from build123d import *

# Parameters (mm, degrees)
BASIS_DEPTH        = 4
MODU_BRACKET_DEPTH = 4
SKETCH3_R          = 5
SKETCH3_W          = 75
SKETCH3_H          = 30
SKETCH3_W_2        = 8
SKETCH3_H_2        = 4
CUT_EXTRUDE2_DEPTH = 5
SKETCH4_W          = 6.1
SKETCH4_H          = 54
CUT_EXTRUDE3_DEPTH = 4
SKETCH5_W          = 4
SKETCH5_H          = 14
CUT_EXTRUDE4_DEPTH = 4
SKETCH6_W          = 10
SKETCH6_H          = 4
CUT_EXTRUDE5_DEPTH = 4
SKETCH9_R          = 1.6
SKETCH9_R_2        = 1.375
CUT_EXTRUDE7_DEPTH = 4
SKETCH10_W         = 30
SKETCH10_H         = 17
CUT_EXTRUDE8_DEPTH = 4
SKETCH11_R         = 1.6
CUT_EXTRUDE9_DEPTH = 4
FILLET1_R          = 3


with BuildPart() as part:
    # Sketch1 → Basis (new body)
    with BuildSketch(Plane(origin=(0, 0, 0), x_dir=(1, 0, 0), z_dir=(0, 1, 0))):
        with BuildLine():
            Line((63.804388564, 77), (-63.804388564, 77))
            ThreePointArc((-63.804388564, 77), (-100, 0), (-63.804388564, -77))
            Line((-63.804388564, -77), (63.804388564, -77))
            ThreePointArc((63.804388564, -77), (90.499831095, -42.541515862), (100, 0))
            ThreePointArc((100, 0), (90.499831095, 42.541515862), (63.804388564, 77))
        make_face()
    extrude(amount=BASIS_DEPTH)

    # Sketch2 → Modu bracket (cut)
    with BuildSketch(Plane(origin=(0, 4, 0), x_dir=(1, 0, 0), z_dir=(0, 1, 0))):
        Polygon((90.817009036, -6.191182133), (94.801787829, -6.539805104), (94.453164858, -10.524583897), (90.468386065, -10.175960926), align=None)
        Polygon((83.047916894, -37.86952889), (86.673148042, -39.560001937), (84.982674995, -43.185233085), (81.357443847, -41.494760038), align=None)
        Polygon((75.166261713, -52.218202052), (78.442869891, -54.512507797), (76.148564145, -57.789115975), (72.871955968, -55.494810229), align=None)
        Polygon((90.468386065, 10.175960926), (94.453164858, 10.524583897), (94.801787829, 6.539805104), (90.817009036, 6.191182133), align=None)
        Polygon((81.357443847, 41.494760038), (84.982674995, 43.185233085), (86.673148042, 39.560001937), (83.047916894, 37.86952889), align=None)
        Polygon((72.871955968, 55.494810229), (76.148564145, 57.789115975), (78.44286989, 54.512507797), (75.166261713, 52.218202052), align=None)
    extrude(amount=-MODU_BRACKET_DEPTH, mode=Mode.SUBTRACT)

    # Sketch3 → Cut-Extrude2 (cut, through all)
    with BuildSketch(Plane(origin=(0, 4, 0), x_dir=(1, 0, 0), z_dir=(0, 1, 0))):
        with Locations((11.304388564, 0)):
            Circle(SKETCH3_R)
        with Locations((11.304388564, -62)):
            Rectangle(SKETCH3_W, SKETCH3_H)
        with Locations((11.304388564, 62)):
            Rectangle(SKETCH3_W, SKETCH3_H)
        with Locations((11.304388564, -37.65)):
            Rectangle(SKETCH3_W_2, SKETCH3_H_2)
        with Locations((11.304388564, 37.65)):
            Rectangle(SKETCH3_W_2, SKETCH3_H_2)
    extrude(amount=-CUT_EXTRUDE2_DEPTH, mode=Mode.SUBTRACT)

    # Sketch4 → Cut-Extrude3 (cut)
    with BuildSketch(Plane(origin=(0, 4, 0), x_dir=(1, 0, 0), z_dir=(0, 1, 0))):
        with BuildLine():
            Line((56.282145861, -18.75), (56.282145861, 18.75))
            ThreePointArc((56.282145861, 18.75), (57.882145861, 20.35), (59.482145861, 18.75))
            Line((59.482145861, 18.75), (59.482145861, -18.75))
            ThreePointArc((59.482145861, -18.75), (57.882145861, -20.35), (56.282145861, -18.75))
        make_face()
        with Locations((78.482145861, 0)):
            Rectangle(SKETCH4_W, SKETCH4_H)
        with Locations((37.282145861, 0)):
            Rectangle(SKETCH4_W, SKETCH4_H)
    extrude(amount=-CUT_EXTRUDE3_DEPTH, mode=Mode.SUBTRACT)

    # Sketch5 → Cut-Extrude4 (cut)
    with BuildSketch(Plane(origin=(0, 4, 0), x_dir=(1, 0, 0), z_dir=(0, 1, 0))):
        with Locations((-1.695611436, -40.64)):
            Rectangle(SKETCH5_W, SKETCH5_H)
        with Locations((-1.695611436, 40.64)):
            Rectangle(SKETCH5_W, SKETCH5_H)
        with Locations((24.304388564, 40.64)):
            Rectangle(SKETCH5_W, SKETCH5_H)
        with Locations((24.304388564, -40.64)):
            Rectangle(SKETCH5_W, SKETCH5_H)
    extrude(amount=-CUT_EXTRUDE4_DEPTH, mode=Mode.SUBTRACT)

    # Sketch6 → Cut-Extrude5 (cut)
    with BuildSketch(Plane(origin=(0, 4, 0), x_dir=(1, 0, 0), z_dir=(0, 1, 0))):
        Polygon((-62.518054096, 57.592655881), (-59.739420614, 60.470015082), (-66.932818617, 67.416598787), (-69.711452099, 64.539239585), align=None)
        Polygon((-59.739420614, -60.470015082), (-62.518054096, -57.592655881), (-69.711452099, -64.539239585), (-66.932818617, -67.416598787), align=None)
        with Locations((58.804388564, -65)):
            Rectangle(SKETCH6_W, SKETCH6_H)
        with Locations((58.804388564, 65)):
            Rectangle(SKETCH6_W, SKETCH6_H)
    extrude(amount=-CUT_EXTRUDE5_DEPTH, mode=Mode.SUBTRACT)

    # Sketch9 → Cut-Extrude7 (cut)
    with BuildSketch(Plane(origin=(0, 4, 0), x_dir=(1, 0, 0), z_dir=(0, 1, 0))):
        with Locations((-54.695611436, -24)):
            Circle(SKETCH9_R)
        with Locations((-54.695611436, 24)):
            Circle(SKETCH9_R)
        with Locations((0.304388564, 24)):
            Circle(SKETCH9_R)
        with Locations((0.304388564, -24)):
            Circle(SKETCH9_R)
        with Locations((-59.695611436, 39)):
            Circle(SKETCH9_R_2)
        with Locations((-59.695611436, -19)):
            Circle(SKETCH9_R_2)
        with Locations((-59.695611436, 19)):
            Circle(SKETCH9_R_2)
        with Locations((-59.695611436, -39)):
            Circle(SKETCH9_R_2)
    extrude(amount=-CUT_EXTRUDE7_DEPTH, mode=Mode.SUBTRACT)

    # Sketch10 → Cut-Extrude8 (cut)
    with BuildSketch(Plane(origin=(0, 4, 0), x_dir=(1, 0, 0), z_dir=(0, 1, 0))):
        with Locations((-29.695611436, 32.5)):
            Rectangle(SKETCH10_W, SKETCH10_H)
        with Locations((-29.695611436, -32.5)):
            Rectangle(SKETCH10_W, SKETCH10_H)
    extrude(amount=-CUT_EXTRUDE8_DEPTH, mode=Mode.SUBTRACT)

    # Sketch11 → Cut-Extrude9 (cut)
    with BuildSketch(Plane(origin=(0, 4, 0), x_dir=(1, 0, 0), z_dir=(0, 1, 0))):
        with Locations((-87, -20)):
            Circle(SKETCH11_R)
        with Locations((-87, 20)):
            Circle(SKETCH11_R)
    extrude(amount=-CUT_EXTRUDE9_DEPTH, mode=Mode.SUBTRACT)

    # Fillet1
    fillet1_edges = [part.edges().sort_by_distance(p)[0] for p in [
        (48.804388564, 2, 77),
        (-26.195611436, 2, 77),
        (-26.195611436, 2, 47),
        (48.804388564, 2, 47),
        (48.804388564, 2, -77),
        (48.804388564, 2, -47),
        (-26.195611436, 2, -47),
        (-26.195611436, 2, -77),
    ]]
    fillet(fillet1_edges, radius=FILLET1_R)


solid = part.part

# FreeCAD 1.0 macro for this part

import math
import FreeCAD as App
import Part
import Sketcher

V = App.Vector
Q = App.Units.Quantity


def edges_at(feature, points):
    """Names of the edges that pass closest to the given points."""
    edges = feature.Shape.Edges
    near = lambda p: min(range(len(edges)), key=lambda i: edges[i].distToShape(Part.Vertex(*p))[0])
    return sorted({f"Edge{near(p) + 1}" for p in points})

doc = App.newDocument("Part")
body = doc.addObject("PartDesign::Body", "Body")

sketch1 = body.newObject("Sketcher::SketchObject", "Sketch")
sketch1.AttachmentSupport = (doc.getObject("XZ_Plane"), [""])
sketch1.MapMode = "FlatFace"
sketch1.addGeometry([
    Part.LineSegment(V(64, -77, 0), V(-64, -77, 0)),
    Part.ArcOfCircle(Part.Circle(V(0, 0, 0), V(0, 0, 1), 100), math.radians(130), math.radians(230)),
    Part.LineSegment(V(-64, 77, 0), V(64, 77, 0)),
    Part.ArcOfCircle(Part.Circle(V(0, 0, 0), V(0, 0, 1), 100), math.radians(0), math.radians(50)),
    Part.ArcOfCircle(Part.Circle(V(0, 0, 0), V(0, 0, 1), 100), math.radians(-50), math.radians(0)),
], False)
sketch1.addConstraint([
    Sketcher.Constraint("Coincident", 0, 2, 1, 2),
    Sketcher.Constraint("Coincident", 1, 1, 2, 1),
    Sketcher.Constraint("Coincident", 2, 2, 3, 2),
    Sketcher.Constraint("Tangent", 3, 1, 4, 2),
    Sketcher.Constraint("Coincident", 4, 1, 0, 1),
    Sketcher.Constraint("Horizontal", 0),
    Sketcher.Constraint("Horizontal", 2),
    Sketcher.Constraint("Coincident", 1, 3, -1, 1),
    Sketcher.Constraint("Coincident", 3, 3, -1, 1),
    Sketcher.Constraint("Equal", 1, 3),
    Sketcher.Constraint("Equal", 3, 4),
    Sketcher.Constraint("PointOnObject", 3, 1, -1),
    Sketcher.Constraint("Vertical", 0, 2, 1, 1),
    Sketcher.Constraint("Radius", 1, 100.0),
    Sketcher.Constraint("DistanceY", 0, 2, -1, 1, 77.0),
])
pad1 = body.newObject("PartDesign::Pad", "Pad")
pad1.Profile = sketch1
pad1.Length = 4
pad1.Reversed = True

sketch2 = body.newObject("Sketcher::SketchObject", "Sketch001")
sketch2.AttachmentSupport = (doc.getObject("XZ_Plane"), [""])
sketch2.MapMode = "FlatFace"
sketch2.AttachmentOffset = App.Placement(V(0, 0, -4), App.Rotation())
sketch2.addGeometry([
    Part.LineSegment(V(94.8, 6.5, 0), V(90.8, 6.2, 0)),
    Part.LineSegment(V(90.8, 6.2, 0), V(90.5, 10.2, 0)),
    Part.LineSegment(V(90.5, 10.2, 0), V(94.5, 10.5, 0)),
    Part.LineSegment(V(94.5, 10.5, 0), V(94.8, 6.5, 0)),
    Part.LineSegment(V(86.7, 39.6, 0), V(83, 37.9, 0)),
    Part.LineSegment(V(83, 37.9, 0), V(81.4, 41.5, 0)),
    Part.LineSegment(V(81.4, 41.5, 0), V(85, 43.2, 0)),
    Part.LineSegment(V(85, 43.2, 0), V(86.7, 39.6, 0)),
    Part.LineSegment(V(78.4, 54.5, 0), V(75.2, 52.2, 0)),
    Part.LineSegment(V(75.2, 52.2, 0), V(72.9, 55.5, 0)),
    Part.LineSegment(V(72.9, 55.5, 0), V(76.1, 57.8, 0)),
    Part.LineSegment(V(76.1, 57.8, 0), V(78.4, 54.5, 0)),
    Part.LineSegment(V(94.5, -10.5, 0), V(90.5, -10.2, 0)),
    Part.LineSegment(V(90.5, -10.2, 0), V(90.8, -6.2, 0)),
    Part.LineSegment(V(90.8, -6.2, 0), V(94.8, -6.5, 0)),
    Part.LineSegment(V(94.8, -6.5, 0), V(94.5, -10.5, 0)),
    Part.LineSegment(V(85, -43.2, 0), V(81.4, -41.5, 0)),
    Part.LineSegment(V(81.4, -41.5, 0), V(83, -37.9, 0)),
    Part.LineSegment(V(83, -37.9, 0), V(86.7, -39.6, 0)),
    Part.LineSegment(V(86.7, -39.6, 0), V(85, -43.2, 0)),
    Part.LineSegment(V(76.1, -57.8, 0), V(72.9, -55.5, 0)),
    Part.LineSegment(V(72.9, -55.5, 0), V(75.2, -52.2, 0)),
    Part.LineSegment(V(75.2, -52.2, 0), V(78.4, -54.5, 0)),
    Part.LineSegment(V(78.4, -54.5, 0), V(76.1, -57.8, 0)),
], False)
sketch2.addConstraint([
    Sketcher.Constraint("Coincident", 0, 2, 1, 1),
    Sketcher.Constraint("Coincident", 1, 2, 2, 1),
    Sketcher.Constraint("Coincident", 2, 2, 3, 1),
    Sketcher.Constraint("Coincident", 3, 2, 0, 1),
    Sketcher.Constraint("Coincident", 4, 2, 5, 1),
    Sketcher.Constraint("Coincident", 5, 2, 6, 1),
    Sketcher.Constraint("Coincident", 6, 2, 7, 1),
    Sketcher.Constraint("Coincident", 7, 2, 4, 1),
    Sketcher.Constraint("Coincident", 8, 2, 9, 1),
    Sketcher.Constraint("Coincident", 9, 2, 10, 1),
    Sketcher.Constraint("Coincident", 10, 2, 11, 1),
    Sketcher.Constraint("Coincident", 11, 2, 8, 1),
    Sketcher.Constraint("Coincident", 12, 2, 13, 1),
    Sketcher.Constraint("Coincident", 13, 2, 14, 1),
    Sketcher.Constraint("Coincident", 14, 2, 15, 1),
    Sketcher.Constraint("Coincident", 15, 2, 12, 1),
    Sketcher.Constraint("Coincident", 16, 2, 17, 1),
    Sketcher.Constraint("Coincident", 17, 2, 18, 1),
    Sketcher.Constraint("Coincident", 18, 2, 19, 1),
    Sketcher.Constraint("Coincident", 19, 2, 16, 1),
    Sketcher.Constraint("Coincident", 20, 2, 21, 1),
    Sketcher.Constraint("Coincident", 21, 2, 22, 1),
    Sketcher.Constraint("Coincident", 22, 2, 23, 1),
    Sketcher.Constraint("Coincident", 23, 2, 20, 1),
    Sketcher.Constraint("Symmetric", 1, 2, 12, 2, -1),
    Sketcher.Constraint("Symmetric", 0, 2, 13, 2, -1),
    Sketcher.Constraint("Symmetric", 3, 2, 14, 2, -1),
    Sketcher.Constraint("Symmetric", 2, 2, 15, 2, -1),
    Sketcher.Constraint("Symmetric", 5, 2, 16, 2, -1),
    Sketcher.Constraint("Symmetric", 4, 2, 17, 2, -1),
    Sketcher.Constraint("Symmetric", 7, 2, 18, 2, -1),
    Sketcher.Constraint("Symmetric", 6, 2, 19, 2, -1),
    Sketcher.Constraint("Symmetric", 9, 2, 20, 2, -1),
    Sketcher.Constraint("Symmetric", 8, 2, 21, 2, -1),
    Sketcher.Constraint("Symmetric", 11, 2, 22, 2, -1),
    Sketcher.Constraint("Symmetric", 10, 2, 23, 2, -1),
    Sketcher.Constraint("Perpendicular", 0, 1),
    Sketcher.Constraint("Perpendicular", 1, 2),
    Sketcher.Constraint("Perpendicular", 2, 3),
    Sketcher.Constraint("Perpendicular", 4, 5),
    Sketcher.Constraint("Perpendicular", 5, 6),
    Sketcher.Constraint("Perpendicular", 6, 7),
    Sketcher.Constraint("Perpendicular", 8, 9),
    Sketcher.Constraint("Perpendicular", 9, 10),
    Sketcher.Constraint("Perpendicular", 10, 11),
    Sketcher.Constraint("Equal", 0, 1),
    Sketcher.Constraint("Equal", 3, 4),
    Sketcher.Constraint("Equal", 4, 5),
    Sketcher.Constraint("Equal", 7, 8),
    Sketcher.Constraint("Equal", 8, 9),
    Sketcher.Constraint("Angle", 0, Q("-175 deg")),
    Sketcher.Constraint("Angle", 4, Q("-155 deg")),
    Sketcher.Constraint("Angle", 8, Q("-145 deg")),
    Sketcher.Constraint("Distance", 0, 4.0),
    Sketcher.Constraint("DistanceY", -1, 1, 7, 2, 39.560002),
    Sketcher.Constraint("DistanceY", 1, 2, 5, 2, 31.318799),
    Sketcher.Constraint("DistanceY", 7, 2, 8, 2, 12.6582),
    Sketcher.Constraint("DistanceX", -1, 1, 0, 2, 90.817009),
    Sketcher.Constraint("DistanceX", -1, 1, 7, 2, 86.673148),
    Sketcher.Constraint("DistanceX", -1, 1, 8, 2, 75.166262),
])
pocket1 = body.newObject("PartDesign::Pocket", "Pocket")
pocket1.Profile = sketch2
pocket1.Length = 4
pocket1.Reversed = True

sketch3 = body.newObject("Sketcher::SketchObject", "Sketch002")
sketch3.AttachmentSupport = (doc.getObject("XZ_Plane"), [""])
sketch3.MapMode = "FlatFace"
sketch3.AttachmentOffset = App.Placement(V(0, 0, -4), App.Rotation())
sketch3.addGeometry([
    Part.Circle(V(11.3, 0, 0), V(0, 0, 1), 5),
    Part.LineSegment(V(-26.2, 47, 0), V(-26.2, 77, 0)),
    Part.LineSegment(V(-26.2, 77, 0), V(48.8, 77, 0)),
    Part.LineSegment(V(48.8, 77, 0), V(48.8, 47, 0)),
    Part.LineSegment(V(48.8, 47, 0), V(-26.2, 47, 0)),
    Part.LineSegment(V(-26.2, -77, 0), V(-26.2, -47, 0)),
    Part.LineSegment(V(-26.2, -47, 0), V(48.8, -47, 0)),
    Part.LineSegment(V(48.8, -47, 0), V(48.8, -77, 0)),
    Part.LineSegment(V(48.8, -77, 0), V(-26.2, -77, 0)),
    Part.LineSegment(V(7.3, 35.6, 0), V(7.3, 39.6, 0)),
    Part.LineSegment(V(7.3, 39.6, 0), V(15.3, 39.6, 0)),
    Part.LineSegment(V(15.3, 39.6, 0), V(15.3, 35.6, 0)),
    Part.LineSegment(V(15.3, 35.6, 0), V(7.3, 35.6, 0)),
    Part.LineSegment(V(7.3, -39.6, 0), V(7.3, -35.6, 0)),
    Part.LineSegment(V(7.3, -35.6, 0), V(15.3, -35.6, 0)),
    Part.LineSegment(V(15.3, -35.6, 0), V(15.3, -39.6, 0)),
    Part.LineSegment(V(15.3, -39.6, 0), V(7.3, -39.6, 0)),
], False)
sketch3.addConstraint([
    Sketcher.Constraint("Coincident", 1, 2, 2, 1),
    Sketcher.Constraint("Coincident", 2, 2, 3, 1),
    Sketcher.Constraint("Coincident", 3, 2, 4, 1),
    Sketcher.Constraint("Coincident", 4, 2, 1, 1),
    Sketcher.Constraint("Coincident", 5, 2, 6, 1),
    Sketcher.Constraint("Coincident", 6, 2, 7, 1),
    Sketcher.Constraint("Coincident", 7, 2, 8, 1),
    Sketcher.Constraint("Coincident", 8, 2, 5, 1),
    Sketcher.Constraint("Coincident", 9, 2, 10, 1),
    Sketcher.Constraint("Coincident", 10, 2, 11, 1),
    Sketcher.Constraint("Coincident", 11, 2, 12, 1),
    Sketcher.Constraint("Coincident", 12, 2, 9, 1),
    Sketcher.Constraint("Coincident", 13, 2, 14, 1),
    Sketcher.Constraint("Coincident", 14, 2, 15, 1),
    Sketcher.Constraint("Coincident", 15, 2, 16, 1),
    Sketcher.Constraint("Coincident", 16, 2, 13, 1),
    Sketcher.Constraint("Vertical", 1),
    Sketcher.Constraint("Horizontal", 2),
    Sketcher.Constraint("Vertical", 3),
    Sketcher.Constraint("Horizontal", 4),
    Sketcher.Constraint("Vertical", 5),
    Sketcher.Constraint("Horizontal", 6),
    Sketcher.Constraint("Vertical", 7),
    Sketcher.Constraint("Horizontal", 8),
    Sketcher.Constraint("Vertical", 9),
    Sketcher.Constraint("Horizontal", 10),
    Sketcher.Constraint("Vertical", 11),
    Sketcher.Constraint("Horizontal", 12),
    Sketcher.Constraint("Vertical", 13),
    Sketcher.Constraint("Horizontal", 14),
    Sketcher.Constraint("Vertical", 15),
    Sketcher.Constraint("Horizontal", 16),
    Sketcher.Constraint("Symmetric", 4, 2, 5, 2, -1),
    Sketcher.Constraint("Symmetric", 2, 2, 7, 2, -1),
    Sketcher.Constraint("Symmetric", 12, 2, 13, 2, -1),
    Sketcher.Constraint("Symmetric", 10, 2, 15, 2, -1),
    Sketcher.Constraint("PointOnObject", 0, 3, -1),
    Sketcher.Constraint("Diameter", 0, 10.0),
    Sketcher.Constraint("DistanceX", 2, 1, 2, 2, 75.0),
    Sketcher.Constraint("DistanceX", 10, 1, 10, 2, 8.0),
    Sketcher.Constraint("DistanceY", 1, 1, 1, 2, 30.0),
    Sketcher.Constraint("DistanceY", 9, 1, 9, 2, 4.0),
    Sketcher.Constraint("DistanceY", -1, 1, 1, 2, 77.0),
    Sketcher.Constraint("DistanceX", 9, 2, 0, 3, 4.0),
    Sketcher.Constraint("DistanceX", 1, 2, 0, 3, 37.5),
    Sketcher.Constraint("DistanceY", -1, 1, 9, 2, 39.65),
    Sketcher.Constraint("DistanceX", -1, 1, 0, 3, 11.304389),
])
pocket2 = body.newObject("PartDesign::Pocket", "Pocket001")
pocket2.Profile = sketch3
pocket2.Type = "ThroughAll"
pocket2.Reversed = True

sketch4 = body.newObject("Sketcher::SketchObject", "Sketch003")
sketch4.AttachmentSupport = (doc.getObject("XZ_Plane"), [""])
sketch4.MapMode = "FlatFace"
sketch4.AttachmentOffset = App.Placement(V(0, 0, -4), App.Rotation())
sketch4.addGeometry([
    Part.LineSegment(V(56.3, -18.8, 0), V(56.3, 18.8, 0)),
    Part.ArcOfCircle(Part.Circle(V(57.9, 18.8, 0), V(0, 0, 1), 1.6), math.radians(0), math.radians(180)),
    Part.LineSegment(V(59.5, 18.8, 0), V(59.5, -18.8, 0)),
    Part.ArcOfCircle(Part.Circle(V(57.9, -18.8, 0), V(0, 0, 1), 1.6), math.radians(180), math.radians(360)),
    Part.LineSegment(V(75.4, -27, 0), V(75.4, 27, 0)),
    Part.LineSegment(V(75.4, 27, 0), V(81.5, 27, 0)),
    Part.LineSegment(V(81.5, 27, 0), V(81.5, -27, 0)),
    Part.LineSegment(V(81.5, -27, 0), V(75.4, -27, 0)),
    Part.LineSegment(V(34.2, -27, 0), V(34.2, 27, 0)),
    Part.LineSegment(V(34.2, 27, 0), V(40.3, 27, 0)),
    Part.LineSegment(V(40.3, 27, 0), V(40.3, -27, 0)),
    Part.LineSegment(V(40.3, -27, 0), V(34.2, -27, 0)),
], False)
sketch4.addConstraint([
    Sketcher.Constraint("Tangent", 0, 2, 1, 2),
    Sketcher.Constraint("Tangent", 1, 1, 2, 1),
    Sketcher.Constraint("Tangent", 2, 2, 3, 2),
    Sketcher.Constraint("Tangent", 3, 1, 0, 1),
    Sketcher.Constraint("Coincident", 4, 2, 5, 1),
    Sketcher.Constraint("Coincident", 5, 2, 6, 1),
    Sketcher.Constraint("Coincident", 6, 2, 7, 1),
    Sketcher.Constraint("Coincident", 7, 2, 4, 1),
    Sketcher.Constraint("Coincident", 8, 2, 9, 1),
    Sketcher.Constraint("Coincident", 9, 2, 10, 1),
    Sketcher.Constraint("Coincident", 10, 2, 11, 1),
    Sketcher.Constraint("Coincident", 11, 2, 8, 1),
    Sketcher.Constraint("Vertical", 0),
    Sketcher.Constraint("Vertical", 2),
    Sketcher.Constraint("Vertical", 4),
    Sketcher.Constraint("Horizontal", 5),
    Sketcher.Constraint("Vertical", 6),
    Sketcher.Constraint("Horizontal", 7),
    Sketcher.Constraint("Vertical", 8),
    Sketcher.Constraint("Horizontal", 9),
    Sketcher.Constraint("Vertical", 10),
    Sketcher.Constraint("Horizontal", 11),
    Sketcher.Constraint("Horizontal", 5, 2, 8, 2),
    Sketcher.Constraint("Horizontal", 7, 2, 10, 2),
    Sketcher.Constraint("Equal", 7, 9),
    Sketcher.Constraint("Radius", 1, 1.6),
    Sketcher.Constraint("DistanceY", 4, 1, 4, 2, 54.0),
    Sketcher.Constraint("DistanceX", 5, 1, 5, 2, 6.1),
    Sketcher.Constraint("DistanceY", 0, 1, 0, 2, 37.5),
    Sketcher.Constraint("DistanceY", -1, 1, 4, 2, 27.0),
    Sketcher.Constraint("DistanceX", 8, 2, 4, 2, 41.2),
    Sketcher.Constraint("DistanceY", -1, 1, 1, 3, 18.75),
    Sketcher.Constraint("DistanceX", 1, 1, 4, 2, 15.95),
    Sketcher.Constraint("DistanceX", -1, 1, 1, 3, 57.882146),
])
pocket3 = body.newObject("PartDesign::Pocket", "Pocket002")
pocket3.Profile = sketch4
pocket3.Length = 4
pocket3.Reversed = True

sketch5 = body.newObject("Sketcher::SketchObject", "Sketch004")
sketch5.AttachmentSupport = (doc.getObject("XZ_Plane"), [""])
sketch5.MapMode = "FlatFace"
sketch5.AttachmentOffset = App.Placement(V(0, 0, -4), App.Rotation())
sketch5.addGeometry([
    Part.LineSegment(V(-3.7, 33.6, 0), V(-3.7, 47.6, 0)),
    Part.LineSegment(V(-3.7, 47.6, 0), V(0.3, 47.6, 0)),
    Part.LineSegment(V(0.3, 47.6, 0), V(0.3, 33.6, 0)),
    Part.LineSegment(V(0.3, 33.6, 0), V(-3.7, 33.6, 0)),
    Part.LineSegment(V(-3.7, -47.6, 0), V(-3.7, -33.6, 0)),
    Part.LineSegment(V(-3.7, -33.6, 0), V(0.3, -33.6, 0)),
    Part.LineSegment(V(0.3, -33.6, 0), V(0.3, -47.6, 0)),
    Part.LineSegment(V(0.3, -47.6, 0), V(-3.7, -47.6, 0)),
    Part.LineSegment(V(22.3, -47.6, 0), V(22.3, -33.6, 0)),
    Part.LineSegment(V(22.3, -33.6, 0), V(26.3, -33.6, 0)),
    Part.LineSegment(V(26.3, -33.6, 0), V(26.3, -47.6, 0)),
    Part.LineSegment(V(26.3, -47.6, 0), V(22.3, -47.6, 0)),
    Part.LineSegment(V(22.3, 33.6, 0), V(22.3, 47.6, 0)),
    Part.LineSegment(V(22.3, 47.6, 0), V(26.3, 47.6, 0)),
    Part.LineSegment(V(26.3, 47.6, 0), V(26.3, 33.6, 0)),
    Part.LineSegment(V(26.3, 33.6, 0), V(22.3, 33.6, 0)),
], False)
sketch5.addConstraint([
    Sketcher.Constraint("Coincident", 0, 2, 1, 1),
    Sketcher.Constraint("Coincident", 1, 2, 2, 1),
    Sketcher.Constraint("Coincident", 2, 2, 3, 1),
    Sketcher.Constraint("Coincident", 3, 2, 0, 1),
    Sketcher.Constraint("Coincident", 4, 2, 5, 1),
    Sketcher.Constraint("Coincident", 5, 2, 6, 1),
    Sketcher.Constraint("Coincident", 6, 2, 7, 1),
    Sketcher.Constraint("Coincident", 7, 2, 4, 1),
    Sketcher.Constraint("Coincident", 8, 2, 9, 1),
    Sketcher.Constraint("Coincident", 9, 2, 10, 1),
    Sketcher.Constraint("Coincident", 10, 2, 11, 1),
    Sketcher.Constraint("Coincident", 11, 2, 8, 1),
    Sketcher.Constraint("Coincident", 12, 2, 13, 1),
    Sketcher.Constraint("Coincident", 13, 2, 14, 1),
    Sketcher.Constraint("Coincident", 14, 2, 15, 1),
    Sketcher.Constraint("Coincident", 15, 2, 12, 1),
    Sketcher.Constraint("Vertical", 0),
    Sketcher.Constraint("Horizontal", 1),
    Sketcher.Constraint("Vertical", 2),
    Sketcher.Constraint("Horizontal", 3),
    Sketcher.Constraint("Vertical", 4),
    Sketcher.Constraint("Horizontal", 5),
    Sketcher.Constraint("Vertical", 6),
    Sketcher.Constraint("Horizontal", 7),
    Sketcher.Constraint("Vertical", 8),
    Sketcher.Constraint("Horizontal", 9),
    Sketcher.Constraint("Vertical", 10),
    Sketcher.Constraint("Horizontal", 11),
    Sketcher.Constraint("Vertical", 12),
    Sketcher.Constraint("Horizontal", 13),
    Sketcher.Constraint("Vertical", 14),
    Sketcher.Constraint("Horizontal", 15),
    Sketcher.Constraint("Symmetric", 3, 2, 4, 2, -1),
    Sketcher.Constraint("Symmetric", 1, 2, 6, 2, -1),
    Sketcher.Constraint("Symmetric", 11, 2, 12, 2, -1),
    Sketcher.Constraint("Symmetric", 9, 2, 14, 2, -1),
    Sketcher.Constraint("Horizontal", 5, 2, 8, 2),
    Sketcher.Constraint("Horizontal", 7, 2, 10, 2),
    Sketcher.Constraint("Equal", 7, 9),
    Sketcher.Constraint("DistanceX", 1, 1, 1, 2, 4.0),
    Sketcher.Constraint("DistanceY", 0, 1, 0, 2, 14.0),
    Sketcher.Constraint("DistanceX", 5, 2, 8, 2, 22.0),
    Sketcher.Constraint("DistanceY", -1, 1, 0, 2, 47.64),
    Sketcher.Constraint("DistanceX", 0, 2, -1, 1, 3.695611),
])
pocket4 = body.newObject("PartDesign::Pocket", "Pocket003")
pocket4.Profile = sketch5
pocket4.Length = 4
pocket4.Reversed = True

sketch6 = body.newObject("Sketcher::SketchObject", "Sketch005")
sketch6.AttachmentSupport = (doc.getObject("XZ_Plane"), [""])
sketch6.MapMode = "FlatFace"
sketch6.AttachmentOffset = App.Placement(V(0, 0, -4), App.Rotation())
sketch6.addGeometry([
    Part.LineSegment(V(-62.5, -57.6, 0), V(-59.7, -60.5, 0)),
    Part.LineSegment(V(-59.7, -60.5, 0), V(-66.9, -67.4, 0)),
    Part.LineSegment(V(-66.9, -67.4, 0), V(-69.7, -64.5, 0)),
    Part.LineSegment(V(-69.7, -64.5, 0), V(-62.5, -57.6, 0)),
    Part.LineSegment(V(-59.7, 60.5, 0), V(-62.5, 57.6, 0)),
    Part.LineSegment(V(-62.5, 57.6, 0), V(-69.7, 64.5, 0)),
    Part.LineSegment(V(-69.7, 64.5, 0), V(-66.9, 67.4, 0)),
    Part.LineSegment(V(-66.9, 67.4, 0), V(-59.7, 60.5, 0)),
    Part.LineSegment(V(53.8, 63, 0), V(53.8, 67, 0)),
    Part.LineSegment(V(53.8, 67, 0), V(63.8, 67, 0)),
    Part.LineSegment(V(63.8, 67, 0), V(63.8, 63, 0)),
    Part.LineSegment(V(63.8, 63, 0), V(53.8, 63, 0)),
    Part.LineSegment(V(53.8, -67, 0), V(53.8, -63, 0)),
    Part.LineSegment(V(53.8, -63, 0), V(63.8, -63, 0)),
    Part.LineSegment(V(63.8, -63, 0), V(63.8, -67, 0)),
    Part.LineSegment(V(63.8, -67, 0), V(53.8, -67, 0)),
], False)
sketch6.addConstraint([
    Sketcher.Constraint("Coincident", 0, 2, 1, 1),
    Sketcher.Constraint("Coincident", 1, 2, 2, 1),
    Sketcher.Constraint("Coincident", 2, 2, 3, 1),
    Sketcher.Constraint("Coincident", 3, 2, 0, 1),
    Sketcher.Constraint("Coincident", 4, 2, 5, 1),
    Sketcher.Constraint("Coincident", 5, 2, 6, 1),
    Sketcher.Constraint("Coincident", 6, 2, 7, 1),
    Sketcher.Constraint("Coincident", 7, 2, 4, 1),
    Sketcher.Constraint("Coincident", 8, 2, 9, 1),
    Sketcher.Constraint("Coincident", 9, 2, 10, 1),
    Sketcher.Constraint("Coincident", 10, 2, 11, 1),
    Sketcher.Constraint("Coincident", 11, 2, 8, 1),
    Sketcher.Constraint("Coincident", 12, 2, 13, 1),
    Sketcher.Constraint("Coincident", 13, 2, 14, 1),
    Sketcher.Constraint("Coincident", 14, 2, 15, 1),
    Sketcher.Constraint("Coincident", 15, 2, 12, 1),
    Sketcher.Constraint("Vertical", 8),
    Sketcher.Constraint("Horizontal", 9),
    Sketcher.Constraint("Vertical", 10),
    Sketcher.Constraint("Horizontal", 11),
    Sketcher.Constraint("Vertical", 12),
    Sketcher.Constraint("Horizontal", 13),
    Sketcher.Constraint("Vertical", 14),
    Sketcher.Constraint("Horizontal", 15),
    Sketcher.Constraint("Symmetric", 3, 2, 4, 2, -1),
    Sketcher.Constraint("Symmetric", 2, 2, 5, 2, -1),
    Sketcher.Constraint("Symmetric", 1, 2, 6, 2, -1),
    Sketcher.Constraint("Symmetric", 0, 2, 7, 2, -1),
    Sketcher.Constraint("Symmetric", 11, 2, 12, 2, -1),
    Sketcher.Constraint("Symmetric", 9, 2, 14, 2, -1),
    Sketcher.Constraint("Perpendicular", 0, 1),
    Sketcher.Constraint("Perpendicular", 1, 2),
    Sketcher.Constraint("Perpendicular", 2, 3),
    Sketcher.Constraint("DistanceX", 9, 1, 9, 2, 10.0),
    Sketcher.Constraint("DistanceY", 8, 1, 8, 2, 4.0),
    Sketcher.Constraint("Angle", 0, Q("-46 deg")),
    Sketcher.Constraint("Distance", 0, 4.0),
    Sketcher.Constraint("Distance", 1, 10.0),
    Sketcher.Constraint("DistanceY", -1, 1, 8, 2, 67.0),
    Sketcher.Constraint("DistanceY", 1, 2, -1, 1, 67.416599),
    Sketcher.Constraint("DistanceX", 0, 2, -1, 1, 59.739421),
    Sketcher.Constraint("DistanceX", -1, 1, 8, 2, 53.804389),
])
pocket5 = body.newObject("PartDesign::Pocket", "Pocket004")
pocket5.Profile = sketch6
pocket5.Length = 4
pocket5.Reversed = True

sketch7 = body.newObject("Sketcher::SketchObject", "Sketch006")
sketch7.AttachmentSupport = (doc.getObject("XZ_Plane"), [""])
sketch7.MapMode = "FlatFace"
sketch7.AttachmentOffset = App.Placement(V(0, 0, -4), App.Rotation())
sketch7.addGeometry([
    Part.Circle(V(-54.7, 24, 0), V(0, 0, 1), 1.6),
    Part.Circle(V(-54.7, -24, 0), V(0, 0, 1), 1.6),
    Part.Circle(V(0.3, -24, 0), V(0, 0, 1), 1.6),
    Part.Circle(V(0.3, 24, 0), V(0, 0, 1), 1.6),
    Part.Circle(V(-59.7, -39, 0), V(0, 0, 1), 1.4),
    Part.Circle(V(-59.7, 19, 0), V(0, 0, 1), 1.4),
    Part.Circle(V(-59.7, -19, 0), V(0, 0, 1), 1.4),
    Part.Circle(V(-59.7, 39, 0), V(0, 0, 1), 1.4),
], False)
sketch7.addConstraint([
    Sketcher.Constraint("Equal", 0, 1),
    Sketcher.Constraint("Equal", 1, 2),
    Sketcher.Constraint("Equal", 2, 3),
    Sketcher.Constraint("Equal", 4, 5),
    Sketcher.Constraint("Equal", 5, 6),
    Sketcher.Constraint("Equal", 6, 7),
    Sketcher.Constraint("Symmetric", 0, 3, 1, 3, -1),
    Sketcher.Constraint("Symmetric", 2, 3, 3, 3, -1),
    Sketcher.Constraint("Symmetric", 5, 3, 6, 3, -1),
    Sketcher.Constraint("Symmetric", 4, 3, 7, 3, -1),
    Sketcher.Constraint("Horizontal", 1, 3, 2, 3),
    Sketcher.Constraint("Vertical", 4, 3, 5, 3),
    Sketcher.Constraint("Diameter", 0, 3.2),
    Sketcher.Constraint("Diameter", 4, 2.75),
    Sketcher.Constraint("DistanceY", -1, 1, 0, 3, 24.0),
    Sketcher.Constraint("DistanceY", 4, 3, -1, 1, 39.0),
    Sketcher.Constraint("DistanceY", -1, 1, 5, 3, 19.0),
    Sketcher.Constraint("DistanceX", 1, 3, 2, 3, 55.0),
    Sketcher.Constraint("DistanceX", 4, 3, 1, 3, 5.0),
    Sketcher.Constraint("DistanceX", 0, 3, -1, 1, 54.695611),
])
pocket6 = body.newObject("PartDesign::Pocket", "Pocket005")
pocket6.Profile = sketch7
pocket6.Length = 4
pocket6.Reversed = True

sketch8 = body.newObject("Sketcher::SketchObject", "Sketch007")
sketch8.AttachmentSupport = (doc.getObject("XZ_Plane"), [""])
sketch8.MapMode = "FlatFace"
sketch8.AttachmentOffset = App.Placement(V(0, 0, -4), App.Rotation())
sketch8.addGeometry([
    Part.LineSegment(V(-45, -41, 0), V(-45, -24, 0)),
    Part.LineSegment(V(-45, -24, 0), V(-15, -24, 0)),
    Part.LineSegment(V(-15, -24, 0), V(-15, -41, 0)),
    Part.LineSegment(V(-15, -41, 0), V(-45, -41, 0)),
    Part.LineSegment(V(-45, 24, 0), V(-45, 41, 0)),
    Part.LineSegment(V(-45, 41, 0), V(-15, 41, 0)),
    Part.LineSegment(V(-15, 41, 0), V(-15, 24, 0)),
    Part.LineSegment(V(-15, 24, 0), V(-45, 24, 0)),
], False)
sketch8.addConstraint([
    Sketcher.Constraint("Coincident", 0, 2, 1, 1),
    Sketcher.Constraint("Coincident", 1, 2, 2, 1),
    Sketcher.Constraint("Coincident", 2, 2, 3, 1),
    Sketcher.Constraint("Coincident", 3, 2, 0, 1),
    Sketcher.Constraint("Coincident", 4, 2, 5, 1),
    Sketcher.Constraint("Coincident", 5, 2, 6, 1),
    Sketcher.Constraint("Coincident", 6, 2, 7, 1),
    Sketcher.Constraint("Coincident", 7, 2, 4, 1),
    Sketcher.Constraint("Vertical", 0),
    Sketcher.Constraint("Horizontal", 1),
    Sketcher.Constraint("Vertical", 2),
    Sketcher.Constraint("Horizontal", 3),
    Sketcher.Constraint("Vertical", 4),
    Sketcher.Constraint("Horizontal", 5),
    Sketcher.Constraint("Vertical", 6),
    Sketcher.Constraint("Horizontal", 7),
    Sketcher.Constraint("Symmetric", 3, 2, 4, 2, -1),
    Sketcher.Constraint("Symmetric", 1, 2, 6, 2, -1),
    Sketcher.Constraint("DistanceX", 1, 1, 1, 2, 30.0),
    Sketcher.Constraint("DistanceY", 0, 1, 0, 2, 17.0),
    Sketcher.Constraint("DistanceY", 0, 2, -1, 1, 24.0),
    Sketcher.Constraint("DistanceX", 0, 2, -1, 1, 44.695611),
])
pocket7 = body.newObject("PartDesign::Pocket", "Pocket006")
pocket7.Profile = sketch8
pocket7.Length = 4
pocket7.Reversed = True

sketch9 = body.newObject("Sketcher::SketchObject", "Sketch008")
sketch9.AttachmentSupport = (doc.getObject("XZ_Plane"), [""])
sketch9.MapMode = "FlatFace"
sketch9.AttachmentOffset = App.Placement(V(0, 0, -4), App.Rotation())
sketch9.addGeometry([
    Part.Circle(V(-87, 20, 0), V(0, 0, 1), 1.6),
    Part.Circle(V(-87, -20, 0), V(0, 0, 1), 1.6),
], False)
sketch9.addConstraint([
    Sketcher.Constraint("Equal", 0, 1),
    Sketcher.Constraint("Symmetric", 0, 3, 1, 3, -1),
    Sketcher.Constraint("Diameter", 0, 3.2),
    Sketcher.Constraint("DistanceX", 0, 3, -1, 1, 87.0),
    Sketcher.Constraint("DistanceY", -1, 1, 0, 3, 20.0),
])
pocket8 = body.newObject("PartDesign::Pocket", "Pocket007")
pocket8.Profile = sketch9
pocket8.Length = 4
pocket8.Reversed = True
doc.recompute()

fillet = body.newObject("PartDesign::Fillet", "Fillet")
fillet.Base = (pocket8, edges_at(pocket8, [
    (48.804, 2, 77),
    (-26.196, 2, 77),
    (-26.196, 2, 47),
    (48.804, 2, 47),
    (48.804, 2, -77),
    (48.804, 2, -47),
    (-26.196, 2, -47),
    (-26.196, 2, -77),
]))
fillet.Radius = 3

doc.recompute()
